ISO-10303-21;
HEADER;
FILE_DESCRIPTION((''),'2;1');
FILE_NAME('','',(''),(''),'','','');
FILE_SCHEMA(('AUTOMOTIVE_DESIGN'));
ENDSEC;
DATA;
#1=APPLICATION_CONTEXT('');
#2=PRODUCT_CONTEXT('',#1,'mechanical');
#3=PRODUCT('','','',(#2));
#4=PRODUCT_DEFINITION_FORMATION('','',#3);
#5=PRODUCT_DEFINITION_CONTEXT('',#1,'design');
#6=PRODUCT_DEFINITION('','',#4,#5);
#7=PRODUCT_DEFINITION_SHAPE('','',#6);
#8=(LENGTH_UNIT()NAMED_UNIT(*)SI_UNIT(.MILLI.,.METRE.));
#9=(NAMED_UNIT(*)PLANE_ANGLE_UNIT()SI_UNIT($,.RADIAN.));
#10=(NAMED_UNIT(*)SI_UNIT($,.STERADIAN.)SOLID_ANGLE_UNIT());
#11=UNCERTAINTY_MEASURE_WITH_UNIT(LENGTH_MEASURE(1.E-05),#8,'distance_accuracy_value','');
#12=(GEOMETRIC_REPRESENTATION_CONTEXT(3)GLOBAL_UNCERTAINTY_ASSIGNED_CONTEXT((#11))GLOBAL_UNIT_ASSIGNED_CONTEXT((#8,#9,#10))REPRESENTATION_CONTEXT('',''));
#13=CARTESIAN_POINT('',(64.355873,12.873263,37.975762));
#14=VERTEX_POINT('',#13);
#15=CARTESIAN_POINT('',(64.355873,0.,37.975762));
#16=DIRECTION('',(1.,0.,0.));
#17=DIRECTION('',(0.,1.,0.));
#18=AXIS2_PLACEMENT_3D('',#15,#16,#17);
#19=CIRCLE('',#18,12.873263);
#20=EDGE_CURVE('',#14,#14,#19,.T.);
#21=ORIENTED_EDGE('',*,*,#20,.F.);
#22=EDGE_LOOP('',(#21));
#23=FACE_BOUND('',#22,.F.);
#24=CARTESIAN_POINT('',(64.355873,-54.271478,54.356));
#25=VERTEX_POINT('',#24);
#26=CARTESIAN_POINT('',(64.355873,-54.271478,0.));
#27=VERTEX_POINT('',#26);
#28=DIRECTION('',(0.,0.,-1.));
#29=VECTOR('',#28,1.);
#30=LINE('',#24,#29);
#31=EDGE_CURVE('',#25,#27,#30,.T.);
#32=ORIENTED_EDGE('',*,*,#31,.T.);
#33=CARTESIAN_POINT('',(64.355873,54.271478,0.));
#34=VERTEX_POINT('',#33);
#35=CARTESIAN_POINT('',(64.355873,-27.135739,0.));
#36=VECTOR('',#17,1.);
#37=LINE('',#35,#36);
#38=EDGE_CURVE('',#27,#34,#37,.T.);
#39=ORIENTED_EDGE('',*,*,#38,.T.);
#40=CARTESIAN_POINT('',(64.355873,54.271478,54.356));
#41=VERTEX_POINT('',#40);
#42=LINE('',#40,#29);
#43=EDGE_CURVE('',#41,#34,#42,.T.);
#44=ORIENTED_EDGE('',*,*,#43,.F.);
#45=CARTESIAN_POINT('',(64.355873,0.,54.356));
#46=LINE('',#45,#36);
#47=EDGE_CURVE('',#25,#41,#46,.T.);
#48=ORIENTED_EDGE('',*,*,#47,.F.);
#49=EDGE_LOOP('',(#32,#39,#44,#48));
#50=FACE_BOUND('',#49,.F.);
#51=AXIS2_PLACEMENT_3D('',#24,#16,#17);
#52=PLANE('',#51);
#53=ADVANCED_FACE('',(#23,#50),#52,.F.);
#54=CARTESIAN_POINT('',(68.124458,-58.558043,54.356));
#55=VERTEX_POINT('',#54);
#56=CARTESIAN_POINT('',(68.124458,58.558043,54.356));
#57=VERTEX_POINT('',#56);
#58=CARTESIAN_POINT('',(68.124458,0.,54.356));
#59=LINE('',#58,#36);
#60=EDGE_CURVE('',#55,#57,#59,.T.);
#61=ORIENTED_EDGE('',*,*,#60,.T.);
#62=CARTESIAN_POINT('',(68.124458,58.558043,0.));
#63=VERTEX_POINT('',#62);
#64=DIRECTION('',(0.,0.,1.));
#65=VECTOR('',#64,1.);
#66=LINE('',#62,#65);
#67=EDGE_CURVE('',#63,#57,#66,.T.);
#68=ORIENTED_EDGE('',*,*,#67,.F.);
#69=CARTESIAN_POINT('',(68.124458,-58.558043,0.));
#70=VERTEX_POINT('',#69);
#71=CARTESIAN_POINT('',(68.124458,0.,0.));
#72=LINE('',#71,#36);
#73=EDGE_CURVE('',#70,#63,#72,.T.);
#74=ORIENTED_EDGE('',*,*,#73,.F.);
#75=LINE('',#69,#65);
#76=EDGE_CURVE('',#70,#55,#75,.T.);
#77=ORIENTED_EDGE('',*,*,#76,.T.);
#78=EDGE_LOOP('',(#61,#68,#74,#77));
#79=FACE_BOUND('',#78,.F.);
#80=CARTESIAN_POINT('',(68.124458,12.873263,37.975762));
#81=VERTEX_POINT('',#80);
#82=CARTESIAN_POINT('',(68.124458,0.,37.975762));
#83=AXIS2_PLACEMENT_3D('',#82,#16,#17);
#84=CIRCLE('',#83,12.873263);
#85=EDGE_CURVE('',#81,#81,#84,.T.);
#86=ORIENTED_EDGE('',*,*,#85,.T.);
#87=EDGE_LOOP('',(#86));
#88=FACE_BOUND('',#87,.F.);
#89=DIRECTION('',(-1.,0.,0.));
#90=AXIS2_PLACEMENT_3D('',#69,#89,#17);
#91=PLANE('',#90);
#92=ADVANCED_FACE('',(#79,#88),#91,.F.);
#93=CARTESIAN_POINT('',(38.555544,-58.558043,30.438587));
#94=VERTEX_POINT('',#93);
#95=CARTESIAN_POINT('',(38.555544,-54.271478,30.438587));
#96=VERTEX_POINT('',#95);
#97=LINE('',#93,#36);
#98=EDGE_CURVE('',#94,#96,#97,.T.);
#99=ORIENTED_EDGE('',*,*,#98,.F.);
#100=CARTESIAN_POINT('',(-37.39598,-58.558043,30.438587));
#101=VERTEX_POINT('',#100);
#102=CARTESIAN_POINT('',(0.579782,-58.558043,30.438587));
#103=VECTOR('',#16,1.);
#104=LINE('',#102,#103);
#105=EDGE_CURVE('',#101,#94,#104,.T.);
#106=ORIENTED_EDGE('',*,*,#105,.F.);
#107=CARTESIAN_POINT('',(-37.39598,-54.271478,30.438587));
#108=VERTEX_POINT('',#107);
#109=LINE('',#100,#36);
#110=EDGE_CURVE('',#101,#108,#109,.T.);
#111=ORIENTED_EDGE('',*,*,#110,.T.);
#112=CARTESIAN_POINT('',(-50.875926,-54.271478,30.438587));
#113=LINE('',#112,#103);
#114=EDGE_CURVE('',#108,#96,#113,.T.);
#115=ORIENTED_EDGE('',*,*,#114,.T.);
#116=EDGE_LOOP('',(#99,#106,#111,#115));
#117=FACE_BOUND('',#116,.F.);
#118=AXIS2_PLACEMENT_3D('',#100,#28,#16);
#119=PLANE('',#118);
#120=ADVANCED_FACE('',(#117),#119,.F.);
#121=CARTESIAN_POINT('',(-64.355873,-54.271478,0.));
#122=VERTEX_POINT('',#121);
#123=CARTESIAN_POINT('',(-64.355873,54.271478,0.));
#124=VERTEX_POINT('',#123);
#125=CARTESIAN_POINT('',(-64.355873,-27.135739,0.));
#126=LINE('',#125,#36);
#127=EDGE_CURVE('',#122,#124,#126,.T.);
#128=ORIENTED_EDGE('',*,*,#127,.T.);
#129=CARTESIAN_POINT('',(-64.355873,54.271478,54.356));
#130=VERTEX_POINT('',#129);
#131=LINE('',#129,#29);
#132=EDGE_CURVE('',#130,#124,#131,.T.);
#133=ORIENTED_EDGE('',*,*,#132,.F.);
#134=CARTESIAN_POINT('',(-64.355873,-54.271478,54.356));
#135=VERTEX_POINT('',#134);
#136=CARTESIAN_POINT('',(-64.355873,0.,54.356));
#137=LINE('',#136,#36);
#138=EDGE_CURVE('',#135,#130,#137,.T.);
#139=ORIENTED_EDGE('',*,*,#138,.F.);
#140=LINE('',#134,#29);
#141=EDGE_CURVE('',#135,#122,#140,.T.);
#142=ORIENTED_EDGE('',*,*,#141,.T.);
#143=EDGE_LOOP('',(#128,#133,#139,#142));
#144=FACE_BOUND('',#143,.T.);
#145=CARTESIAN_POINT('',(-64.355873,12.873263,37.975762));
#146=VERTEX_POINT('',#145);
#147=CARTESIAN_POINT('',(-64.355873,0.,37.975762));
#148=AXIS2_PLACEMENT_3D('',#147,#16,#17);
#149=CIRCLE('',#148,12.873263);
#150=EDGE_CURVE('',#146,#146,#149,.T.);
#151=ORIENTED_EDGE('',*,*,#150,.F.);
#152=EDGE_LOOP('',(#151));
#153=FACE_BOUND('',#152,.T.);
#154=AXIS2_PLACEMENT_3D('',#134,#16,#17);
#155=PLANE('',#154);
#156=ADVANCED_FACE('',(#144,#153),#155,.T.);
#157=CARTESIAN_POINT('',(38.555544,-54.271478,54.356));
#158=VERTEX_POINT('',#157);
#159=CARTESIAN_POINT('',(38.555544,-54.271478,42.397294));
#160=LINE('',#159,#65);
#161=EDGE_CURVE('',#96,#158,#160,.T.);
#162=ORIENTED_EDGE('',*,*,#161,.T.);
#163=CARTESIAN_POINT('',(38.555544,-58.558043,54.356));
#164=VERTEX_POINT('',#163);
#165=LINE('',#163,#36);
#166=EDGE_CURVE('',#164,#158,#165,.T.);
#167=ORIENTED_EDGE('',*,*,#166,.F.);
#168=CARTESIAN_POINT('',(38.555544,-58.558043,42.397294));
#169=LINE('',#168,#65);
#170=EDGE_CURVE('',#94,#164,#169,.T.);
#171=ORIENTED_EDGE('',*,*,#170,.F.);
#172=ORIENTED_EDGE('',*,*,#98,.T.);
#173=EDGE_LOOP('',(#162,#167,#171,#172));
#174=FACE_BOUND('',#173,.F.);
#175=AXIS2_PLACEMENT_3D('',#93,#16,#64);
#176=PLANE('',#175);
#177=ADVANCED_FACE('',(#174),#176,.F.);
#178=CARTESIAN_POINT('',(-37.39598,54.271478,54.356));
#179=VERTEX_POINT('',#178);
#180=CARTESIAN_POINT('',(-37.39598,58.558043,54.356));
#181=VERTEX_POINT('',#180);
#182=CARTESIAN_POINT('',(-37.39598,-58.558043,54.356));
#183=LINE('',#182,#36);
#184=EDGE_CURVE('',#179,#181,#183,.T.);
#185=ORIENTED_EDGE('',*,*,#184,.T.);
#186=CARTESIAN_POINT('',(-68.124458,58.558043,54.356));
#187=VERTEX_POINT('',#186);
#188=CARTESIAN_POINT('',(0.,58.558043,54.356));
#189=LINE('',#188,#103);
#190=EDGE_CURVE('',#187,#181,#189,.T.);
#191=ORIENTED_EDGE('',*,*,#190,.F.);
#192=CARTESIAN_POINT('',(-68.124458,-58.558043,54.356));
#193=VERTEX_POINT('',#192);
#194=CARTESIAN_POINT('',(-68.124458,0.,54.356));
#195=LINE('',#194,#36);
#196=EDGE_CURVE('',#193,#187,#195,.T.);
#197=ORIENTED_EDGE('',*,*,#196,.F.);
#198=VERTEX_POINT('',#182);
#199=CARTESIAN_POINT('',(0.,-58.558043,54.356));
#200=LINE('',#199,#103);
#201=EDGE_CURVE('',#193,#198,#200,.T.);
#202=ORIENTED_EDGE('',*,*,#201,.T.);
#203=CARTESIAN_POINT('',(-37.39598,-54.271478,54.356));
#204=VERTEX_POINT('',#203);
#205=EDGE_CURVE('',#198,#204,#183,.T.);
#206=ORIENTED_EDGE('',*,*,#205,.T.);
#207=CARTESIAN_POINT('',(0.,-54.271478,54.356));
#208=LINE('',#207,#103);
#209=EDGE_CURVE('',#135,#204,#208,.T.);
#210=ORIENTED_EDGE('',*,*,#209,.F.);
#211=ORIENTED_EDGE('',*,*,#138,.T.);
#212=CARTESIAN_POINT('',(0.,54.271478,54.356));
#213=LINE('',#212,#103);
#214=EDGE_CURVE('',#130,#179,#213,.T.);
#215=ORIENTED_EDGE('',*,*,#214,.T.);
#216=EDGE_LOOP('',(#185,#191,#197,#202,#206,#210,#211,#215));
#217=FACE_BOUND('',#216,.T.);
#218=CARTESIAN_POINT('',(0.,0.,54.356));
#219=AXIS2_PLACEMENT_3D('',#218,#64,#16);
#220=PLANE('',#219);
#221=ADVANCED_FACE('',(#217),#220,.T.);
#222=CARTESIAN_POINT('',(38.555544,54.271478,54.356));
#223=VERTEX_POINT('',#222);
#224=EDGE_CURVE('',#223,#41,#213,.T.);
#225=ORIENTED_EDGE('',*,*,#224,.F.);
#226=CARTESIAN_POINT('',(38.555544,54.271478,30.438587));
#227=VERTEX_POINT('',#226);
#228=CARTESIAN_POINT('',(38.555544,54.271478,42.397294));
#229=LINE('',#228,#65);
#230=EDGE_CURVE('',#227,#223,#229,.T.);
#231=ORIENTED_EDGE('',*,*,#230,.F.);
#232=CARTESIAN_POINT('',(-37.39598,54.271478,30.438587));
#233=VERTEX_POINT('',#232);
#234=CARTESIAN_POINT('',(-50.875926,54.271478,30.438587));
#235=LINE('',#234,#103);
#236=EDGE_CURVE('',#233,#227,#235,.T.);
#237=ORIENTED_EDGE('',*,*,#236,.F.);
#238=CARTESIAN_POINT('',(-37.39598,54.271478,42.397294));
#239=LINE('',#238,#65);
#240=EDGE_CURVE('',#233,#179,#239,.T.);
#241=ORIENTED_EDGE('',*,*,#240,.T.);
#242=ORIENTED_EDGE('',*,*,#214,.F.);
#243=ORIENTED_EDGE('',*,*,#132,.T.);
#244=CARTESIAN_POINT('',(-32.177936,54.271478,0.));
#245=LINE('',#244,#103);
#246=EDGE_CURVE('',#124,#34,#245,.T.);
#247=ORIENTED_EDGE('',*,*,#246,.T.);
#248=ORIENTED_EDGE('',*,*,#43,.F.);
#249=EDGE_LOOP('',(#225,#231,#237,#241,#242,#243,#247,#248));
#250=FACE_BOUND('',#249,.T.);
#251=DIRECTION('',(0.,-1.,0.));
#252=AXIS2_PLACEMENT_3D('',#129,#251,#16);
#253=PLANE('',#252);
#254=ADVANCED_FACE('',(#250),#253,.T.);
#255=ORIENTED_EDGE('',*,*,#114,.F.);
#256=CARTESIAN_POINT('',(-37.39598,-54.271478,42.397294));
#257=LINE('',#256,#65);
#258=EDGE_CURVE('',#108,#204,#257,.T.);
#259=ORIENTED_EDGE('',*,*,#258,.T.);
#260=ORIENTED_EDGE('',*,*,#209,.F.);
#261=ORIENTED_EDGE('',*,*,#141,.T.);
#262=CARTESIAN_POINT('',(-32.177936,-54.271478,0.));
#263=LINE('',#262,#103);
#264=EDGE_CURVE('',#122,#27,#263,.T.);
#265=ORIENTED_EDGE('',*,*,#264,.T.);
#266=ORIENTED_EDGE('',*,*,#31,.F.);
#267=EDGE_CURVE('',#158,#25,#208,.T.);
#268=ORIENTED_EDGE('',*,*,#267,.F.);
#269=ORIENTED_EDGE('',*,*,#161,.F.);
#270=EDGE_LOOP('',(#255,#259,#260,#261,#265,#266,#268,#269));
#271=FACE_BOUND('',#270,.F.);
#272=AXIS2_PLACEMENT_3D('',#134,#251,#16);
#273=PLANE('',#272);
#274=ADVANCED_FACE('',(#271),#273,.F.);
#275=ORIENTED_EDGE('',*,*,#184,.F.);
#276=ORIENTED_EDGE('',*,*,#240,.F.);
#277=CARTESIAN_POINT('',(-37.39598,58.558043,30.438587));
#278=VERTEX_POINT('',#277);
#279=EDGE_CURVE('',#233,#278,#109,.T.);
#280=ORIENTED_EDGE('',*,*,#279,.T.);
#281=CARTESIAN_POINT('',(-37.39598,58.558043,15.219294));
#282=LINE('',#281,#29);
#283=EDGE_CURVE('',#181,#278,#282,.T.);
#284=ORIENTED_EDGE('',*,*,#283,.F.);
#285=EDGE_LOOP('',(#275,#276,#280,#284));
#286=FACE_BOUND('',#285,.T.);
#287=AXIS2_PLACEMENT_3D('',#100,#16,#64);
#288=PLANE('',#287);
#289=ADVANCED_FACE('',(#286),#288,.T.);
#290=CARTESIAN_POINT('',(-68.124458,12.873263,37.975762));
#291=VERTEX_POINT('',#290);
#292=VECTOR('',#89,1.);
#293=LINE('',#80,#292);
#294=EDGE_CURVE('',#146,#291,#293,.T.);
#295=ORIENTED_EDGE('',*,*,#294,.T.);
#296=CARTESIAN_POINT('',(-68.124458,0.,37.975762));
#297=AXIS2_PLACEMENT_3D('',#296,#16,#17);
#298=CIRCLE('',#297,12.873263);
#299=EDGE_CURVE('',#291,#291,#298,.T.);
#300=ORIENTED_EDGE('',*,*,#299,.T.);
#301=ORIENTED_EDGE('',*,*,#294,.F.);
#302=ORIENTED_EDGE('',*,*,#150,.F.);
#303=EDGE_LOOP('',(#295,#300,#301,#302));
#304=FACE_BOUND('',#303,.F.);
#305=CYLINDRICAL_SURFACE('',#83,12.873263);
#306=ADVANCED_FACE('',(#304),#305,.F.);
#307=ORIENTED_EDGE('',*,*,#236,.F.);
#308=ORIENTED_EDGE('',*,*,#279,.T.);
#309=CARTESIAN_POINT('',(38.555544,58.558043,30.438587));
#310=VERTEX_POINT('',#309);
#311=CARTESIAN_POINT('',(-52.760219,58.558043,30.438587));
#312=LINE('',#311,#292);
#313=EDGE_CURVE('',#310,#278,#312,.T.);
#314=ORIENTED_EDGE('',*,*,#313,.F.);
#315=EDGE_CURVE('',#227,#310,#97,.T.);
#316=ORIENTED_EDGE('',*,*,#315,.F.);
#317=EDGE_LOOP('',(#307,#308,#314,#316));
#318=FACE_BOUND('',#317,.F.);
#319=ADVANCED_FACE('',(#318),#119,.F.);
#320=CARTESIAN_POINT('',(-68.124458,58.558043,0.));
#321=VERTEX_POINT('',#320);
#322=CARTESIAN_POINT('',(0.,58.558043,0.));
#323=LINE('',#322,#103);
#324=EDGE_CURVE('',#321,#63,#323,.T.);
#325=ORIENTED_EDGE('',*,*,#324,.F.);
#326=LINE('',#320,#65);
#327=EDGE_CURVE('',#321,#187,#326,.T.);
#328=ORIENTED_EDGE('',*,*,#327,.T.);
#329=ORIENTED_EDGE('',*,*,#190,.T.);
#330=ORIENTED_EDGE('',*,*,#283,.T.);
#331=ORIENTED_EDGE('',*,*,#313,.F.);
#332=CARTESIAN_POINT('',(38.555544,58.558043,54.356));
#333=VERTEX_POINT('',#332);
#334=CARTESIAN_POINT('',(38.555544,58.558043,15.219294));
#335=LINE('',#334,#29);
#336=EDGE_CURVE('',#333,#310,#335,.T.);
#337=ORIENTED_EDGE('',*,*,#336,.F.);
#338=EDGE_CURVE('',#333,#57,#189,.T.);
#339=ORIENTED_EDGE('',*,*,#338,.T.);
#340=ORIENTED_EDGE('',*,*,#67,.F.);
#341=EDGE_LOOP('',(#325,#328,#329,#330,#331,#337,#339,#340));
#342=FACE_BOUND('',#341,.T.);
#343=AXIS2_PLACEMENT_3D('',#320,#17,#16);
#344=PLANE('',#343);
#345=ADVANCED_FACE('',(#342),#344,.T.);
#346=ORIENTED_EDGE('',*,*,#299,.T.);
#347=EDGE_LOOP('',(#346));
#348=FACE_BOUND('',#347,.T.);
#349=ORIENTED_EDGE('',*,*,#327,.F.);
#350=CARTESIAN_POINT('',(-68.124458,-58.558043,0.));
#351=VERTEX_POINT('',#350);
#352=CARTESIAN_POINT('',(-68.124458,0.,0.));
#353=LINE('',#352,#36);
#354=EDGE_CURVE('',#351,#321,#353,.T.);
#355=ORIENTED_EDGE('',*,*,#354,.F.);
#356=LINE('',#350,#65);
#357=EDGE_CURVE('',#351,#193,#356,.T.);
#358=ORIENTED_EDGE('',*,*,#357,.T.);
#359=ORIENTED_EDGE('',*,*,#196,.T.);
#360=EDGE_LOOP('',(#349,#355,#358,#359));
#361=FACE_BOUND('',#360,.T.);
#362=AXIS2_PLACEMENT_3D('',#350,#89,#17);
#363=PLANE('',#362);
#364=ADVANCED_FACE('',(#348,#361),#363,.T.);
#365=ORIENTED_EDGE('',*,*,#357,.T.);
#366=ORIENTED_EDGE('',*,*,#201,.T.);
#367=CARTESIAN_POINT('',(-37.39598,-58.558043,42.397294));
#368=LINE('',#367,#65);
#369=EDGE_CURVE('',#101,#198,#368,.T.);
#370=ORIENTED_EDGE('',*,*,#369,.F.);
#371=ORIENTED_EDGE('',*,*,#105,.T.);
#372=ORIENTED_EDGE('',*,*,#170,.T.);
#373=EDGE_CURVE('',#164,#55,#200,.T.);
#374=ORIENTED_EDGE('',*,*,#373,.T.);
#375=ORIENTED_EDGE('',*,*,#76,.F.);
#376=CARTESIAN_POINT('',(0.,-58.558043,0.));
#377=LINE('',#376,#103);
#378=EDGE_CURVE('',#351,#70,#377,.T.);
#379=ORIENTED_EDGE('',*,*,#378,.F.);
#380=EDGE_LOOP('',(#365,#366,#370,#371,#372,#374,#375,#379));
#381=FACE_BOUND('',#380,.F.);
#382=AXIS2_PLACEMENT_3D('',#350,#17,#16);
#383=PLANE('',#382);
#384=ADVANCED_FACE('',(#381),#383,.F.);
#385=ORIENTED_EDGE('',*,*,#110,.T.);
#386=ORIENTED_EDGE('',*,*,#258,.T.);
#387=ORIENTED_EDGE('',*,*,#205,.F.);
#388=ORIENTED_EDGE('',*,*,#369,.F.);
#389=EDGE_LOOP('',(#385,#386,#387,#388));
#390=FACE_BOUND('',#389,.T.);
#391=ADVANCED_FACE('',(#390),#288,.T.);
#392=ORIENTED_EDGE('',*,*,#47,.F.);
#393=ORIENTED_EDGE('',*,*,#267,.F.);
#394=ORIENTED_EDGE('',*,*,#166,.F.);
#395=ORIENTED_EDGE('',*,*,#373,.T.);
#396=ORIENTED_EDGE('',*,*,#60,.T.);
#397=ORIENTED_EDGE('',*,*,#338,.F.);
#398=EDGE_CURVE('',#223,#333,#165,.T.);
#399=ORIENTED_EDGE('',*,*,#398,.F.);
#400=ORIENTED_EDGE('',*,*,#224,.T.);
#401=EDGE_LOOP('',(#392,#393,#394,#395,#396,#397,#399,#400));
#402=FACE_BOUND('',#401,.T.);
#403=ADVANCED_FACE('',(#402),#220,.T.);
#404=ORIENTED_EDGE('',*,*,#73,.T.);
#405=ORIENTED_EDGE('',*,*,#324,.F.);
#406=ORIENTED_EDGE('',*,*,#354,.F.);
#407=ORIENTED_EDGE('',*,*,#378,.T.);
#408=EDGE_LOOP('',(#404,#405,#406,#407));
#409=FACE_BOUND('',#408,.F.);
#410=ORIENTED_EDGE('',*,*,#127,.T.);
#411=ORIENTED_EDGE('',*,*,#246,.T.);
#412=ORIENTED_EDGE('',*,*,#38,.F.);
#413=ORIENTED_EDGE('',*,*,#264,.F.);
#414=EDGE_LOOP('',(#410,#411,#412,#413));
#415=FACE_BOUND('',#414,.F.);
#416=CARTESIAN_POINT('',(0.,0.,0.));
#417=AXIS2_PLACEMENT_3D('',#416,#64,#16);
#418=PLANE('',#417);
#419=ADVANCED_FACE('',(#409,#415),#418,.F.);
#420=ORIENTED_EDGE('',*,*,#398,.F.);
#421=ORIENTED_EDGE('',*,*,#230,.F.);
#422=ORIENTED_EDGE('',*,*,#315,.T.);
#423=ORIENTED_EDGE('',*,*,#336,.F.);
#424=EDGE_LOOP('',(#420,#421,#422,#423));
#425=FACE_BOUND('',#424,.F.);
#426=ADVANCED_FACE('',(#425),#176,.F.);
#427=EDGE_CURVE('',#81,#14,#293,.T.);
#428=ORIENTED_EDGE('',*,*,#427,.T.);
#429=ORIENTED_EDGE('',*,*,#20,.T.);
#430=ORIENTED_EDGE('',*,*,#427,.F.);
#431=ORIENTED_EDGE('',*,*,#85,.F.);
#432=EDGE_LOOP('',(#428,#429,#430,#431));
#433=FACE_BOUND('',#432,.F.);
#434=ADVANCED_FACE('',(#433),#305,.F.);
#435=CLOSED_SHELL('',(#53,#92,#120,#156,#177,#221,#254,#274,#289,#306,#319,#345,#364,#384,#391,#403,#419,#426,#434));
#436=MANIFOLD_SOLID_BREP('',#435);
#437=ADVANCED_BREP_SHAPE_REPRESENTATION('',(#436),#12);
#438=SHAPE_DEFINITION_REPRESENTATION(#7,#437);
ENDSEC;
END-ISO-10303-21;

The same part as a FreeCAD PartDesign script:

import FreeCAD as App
import Part
import Sketcher
Q = App.Units.Quantity


def add_polygon(sketch, points):
    """Adds a closed chain of lines whose ends are joined by coincident constraints."""
    first, n = sketch.GeometryCount, len(points)
    for a, b in zip(points, points[1:] + points[:1]):
        sketch.addGeometry(Part.LineSegment(App.Vector(*a, 0), App.Vector(*b, 0)), False)
    for i in range(n):
        sketch.addConstraint(Sketcher.Constraint("Coincident", first + i, 2, first + (i + 1) % n, 1))

doc = App.newDocument("Part")
params = doc.addObject("Spreadsheet::Sheet", "Params")
for row, (alias, value) in enumerate([
    ("pad1_length", "2.14 in"),
], start=1):
    params.set(f"A{row}", alias)
    params.set(f"B{row}", "=" + value)
    params.setAlias(f"B{row}", alias)

body = doc.addObject("PartDesign::Body", "Body")

sketch1 = body.newObject("Sketcher::SketchObject", "Sketch")
sketch1.AttachmentSupport = (doc.getObject("XY_Plane"), [""])
sketch1.MapMode = "FlatFace"
add_polygon(sketch1, [(-68.124458, 58.558043), (-68.124458, -58.558043), (68.124458, -58.558043), (68.124458, 58.558043)])
sketch1.addConstraint([
    Sketcher.Constraint("Vertical", 0),
    Sketcher.Constraint("Horizontal", 1),
    Sketcher.Constraint("Vertical", 2),
    Sketcher.Constraint("Horizontal", 3),
    Sketcher.Constraint("Symmetric", 0, 2, 2, 2, -1, 1),
    Sketcher.Constraint("DistanceX", 1, 1, 1, 2, Q("136.248916 mm")),
    Sketcher.Constraint("DistanceY", 0, 2, 0, 1, Q("117.116086 mm")),
])
pad1 = body.newObject("PartDesign::Pad", "Pad")
pad1.Profile = sketch1
pad1.setExpression("Length", "Params.pad1_length")

sketch2 = body.newObject("Sketcher::SketchObject", "Sketch001")
sketch2.AttachmentSupport = (doc.getObject("XY_Plane"), [""])
sketch2.MapMode = "FlatFace"
sketch2.AttachmentOffset = App.Placement(App.Vector(0, 0, 2.14 * 25.4), App.Rotation())
add_polygon(sketch2, [(-64.355873, 54.271478), (-64.355873, -54.271478), (64.355873, -54.271478), (64.355873, 54.271478)])
sketch2.addConstraint([
    Sketcher.Constraint("Vertical", 0),
    Sketcher.Constraint("Horizontal", 1),
    Sketcher.Constraint("Vertical", 2),
    Sketcher.Constraint("Horizontal", 3),
    Sketcher.Constraint("Symmetric", 0, 2, 2, 2, -1, 1),
    Sketcher.Constraint("DistanceX", 1, 1, 1, 2, Q("128.711745 mm")),
    Sketcher.Constraint("DistanceY", 0, 2, 0, 1, Q("108.542956 mm")),
])
pocket1 = body.newObject("PartDesign::Pocket", "Pocket")
pocket1.Profile = sketch2
pocket1.Type = "ThroughAll"

sketch3 = body.newObject("Sketcher::SketchObject", "Sketch002")
sketch3.AttachmentSupport = (doc.getObject("YZ_Plane"), [""])
sketch3.MapMode = "FlatFace"
sketch3.AttachmentOffset = App.Placement(App.Vector(0, 0, 68.124458), App.Rotation())
sketch3.addGeometry(Part.Circle(App.Vector(0, 37.975762, 0), App.Vector(0, 0, 1), 12.873263), False)
sketch3.addConstraint([
    Sketcher.Constraint("PointOnObject", 0, 3, -2),
    Sketcher.Constraint("Diameter", 0, Q("25.746526 mm")),
    Sketcher.Constraint("DistanceY", -1, 1, 0, 3, Q("37.975762 mm")),
])
pocket2 = body.newObject("PartDesign::Pocket", "Pocket001")
pocket2.Profile = sketch3
pocket2.Type = "ThroughAll"

sketch4 = body.newObject("Sketcher::SketchObject", "Sketch003")
sketch4.AttachmentSupport = (doc.getObject("XZ_Plane"), [""])
sketch4.MapMode = "FlatFace"
sketch4.AttachmentOffset = App.Placement(App.Vector(0, 0, 58.558043), App.Rotation())
add_polygon(sketch4, [(-37.39598, 54.356), (-37.39598, 30.438587), (38.555544, 30.438587), (38.555544, 54.356)])
sketch4.addConstraint([
    Sketcher.Constraint("Vertical", 0),
    Sketcher.Constraint("Horizontal", 1),
    Sketcher.Constraint("Vertical", 2),
    Sketcher.Constraint("Horizontal", 3),
    Sketcher.Constraint("DistanceY", -1, 1, 2, 2, Q("2.14 in")),
    Sketcher.Constraint("DistanceX", 1, 1, 1, 2, Q("75.951524 mm")),
    Sketcher.Constraint("DistanceY", 0, 2, 0, 1, Q("23.917413 mm")),
    Sketcher.Constraint("DistanceX", 0, 2, -1, 1, Q("37.39598 mm")),
])
pocket3 = body.newObject("PartDesign::Pocket", "Pocket002")
pocket3.Profile = sketch4
pocket3.Type = "ThroughAll"

doc.recompute()
